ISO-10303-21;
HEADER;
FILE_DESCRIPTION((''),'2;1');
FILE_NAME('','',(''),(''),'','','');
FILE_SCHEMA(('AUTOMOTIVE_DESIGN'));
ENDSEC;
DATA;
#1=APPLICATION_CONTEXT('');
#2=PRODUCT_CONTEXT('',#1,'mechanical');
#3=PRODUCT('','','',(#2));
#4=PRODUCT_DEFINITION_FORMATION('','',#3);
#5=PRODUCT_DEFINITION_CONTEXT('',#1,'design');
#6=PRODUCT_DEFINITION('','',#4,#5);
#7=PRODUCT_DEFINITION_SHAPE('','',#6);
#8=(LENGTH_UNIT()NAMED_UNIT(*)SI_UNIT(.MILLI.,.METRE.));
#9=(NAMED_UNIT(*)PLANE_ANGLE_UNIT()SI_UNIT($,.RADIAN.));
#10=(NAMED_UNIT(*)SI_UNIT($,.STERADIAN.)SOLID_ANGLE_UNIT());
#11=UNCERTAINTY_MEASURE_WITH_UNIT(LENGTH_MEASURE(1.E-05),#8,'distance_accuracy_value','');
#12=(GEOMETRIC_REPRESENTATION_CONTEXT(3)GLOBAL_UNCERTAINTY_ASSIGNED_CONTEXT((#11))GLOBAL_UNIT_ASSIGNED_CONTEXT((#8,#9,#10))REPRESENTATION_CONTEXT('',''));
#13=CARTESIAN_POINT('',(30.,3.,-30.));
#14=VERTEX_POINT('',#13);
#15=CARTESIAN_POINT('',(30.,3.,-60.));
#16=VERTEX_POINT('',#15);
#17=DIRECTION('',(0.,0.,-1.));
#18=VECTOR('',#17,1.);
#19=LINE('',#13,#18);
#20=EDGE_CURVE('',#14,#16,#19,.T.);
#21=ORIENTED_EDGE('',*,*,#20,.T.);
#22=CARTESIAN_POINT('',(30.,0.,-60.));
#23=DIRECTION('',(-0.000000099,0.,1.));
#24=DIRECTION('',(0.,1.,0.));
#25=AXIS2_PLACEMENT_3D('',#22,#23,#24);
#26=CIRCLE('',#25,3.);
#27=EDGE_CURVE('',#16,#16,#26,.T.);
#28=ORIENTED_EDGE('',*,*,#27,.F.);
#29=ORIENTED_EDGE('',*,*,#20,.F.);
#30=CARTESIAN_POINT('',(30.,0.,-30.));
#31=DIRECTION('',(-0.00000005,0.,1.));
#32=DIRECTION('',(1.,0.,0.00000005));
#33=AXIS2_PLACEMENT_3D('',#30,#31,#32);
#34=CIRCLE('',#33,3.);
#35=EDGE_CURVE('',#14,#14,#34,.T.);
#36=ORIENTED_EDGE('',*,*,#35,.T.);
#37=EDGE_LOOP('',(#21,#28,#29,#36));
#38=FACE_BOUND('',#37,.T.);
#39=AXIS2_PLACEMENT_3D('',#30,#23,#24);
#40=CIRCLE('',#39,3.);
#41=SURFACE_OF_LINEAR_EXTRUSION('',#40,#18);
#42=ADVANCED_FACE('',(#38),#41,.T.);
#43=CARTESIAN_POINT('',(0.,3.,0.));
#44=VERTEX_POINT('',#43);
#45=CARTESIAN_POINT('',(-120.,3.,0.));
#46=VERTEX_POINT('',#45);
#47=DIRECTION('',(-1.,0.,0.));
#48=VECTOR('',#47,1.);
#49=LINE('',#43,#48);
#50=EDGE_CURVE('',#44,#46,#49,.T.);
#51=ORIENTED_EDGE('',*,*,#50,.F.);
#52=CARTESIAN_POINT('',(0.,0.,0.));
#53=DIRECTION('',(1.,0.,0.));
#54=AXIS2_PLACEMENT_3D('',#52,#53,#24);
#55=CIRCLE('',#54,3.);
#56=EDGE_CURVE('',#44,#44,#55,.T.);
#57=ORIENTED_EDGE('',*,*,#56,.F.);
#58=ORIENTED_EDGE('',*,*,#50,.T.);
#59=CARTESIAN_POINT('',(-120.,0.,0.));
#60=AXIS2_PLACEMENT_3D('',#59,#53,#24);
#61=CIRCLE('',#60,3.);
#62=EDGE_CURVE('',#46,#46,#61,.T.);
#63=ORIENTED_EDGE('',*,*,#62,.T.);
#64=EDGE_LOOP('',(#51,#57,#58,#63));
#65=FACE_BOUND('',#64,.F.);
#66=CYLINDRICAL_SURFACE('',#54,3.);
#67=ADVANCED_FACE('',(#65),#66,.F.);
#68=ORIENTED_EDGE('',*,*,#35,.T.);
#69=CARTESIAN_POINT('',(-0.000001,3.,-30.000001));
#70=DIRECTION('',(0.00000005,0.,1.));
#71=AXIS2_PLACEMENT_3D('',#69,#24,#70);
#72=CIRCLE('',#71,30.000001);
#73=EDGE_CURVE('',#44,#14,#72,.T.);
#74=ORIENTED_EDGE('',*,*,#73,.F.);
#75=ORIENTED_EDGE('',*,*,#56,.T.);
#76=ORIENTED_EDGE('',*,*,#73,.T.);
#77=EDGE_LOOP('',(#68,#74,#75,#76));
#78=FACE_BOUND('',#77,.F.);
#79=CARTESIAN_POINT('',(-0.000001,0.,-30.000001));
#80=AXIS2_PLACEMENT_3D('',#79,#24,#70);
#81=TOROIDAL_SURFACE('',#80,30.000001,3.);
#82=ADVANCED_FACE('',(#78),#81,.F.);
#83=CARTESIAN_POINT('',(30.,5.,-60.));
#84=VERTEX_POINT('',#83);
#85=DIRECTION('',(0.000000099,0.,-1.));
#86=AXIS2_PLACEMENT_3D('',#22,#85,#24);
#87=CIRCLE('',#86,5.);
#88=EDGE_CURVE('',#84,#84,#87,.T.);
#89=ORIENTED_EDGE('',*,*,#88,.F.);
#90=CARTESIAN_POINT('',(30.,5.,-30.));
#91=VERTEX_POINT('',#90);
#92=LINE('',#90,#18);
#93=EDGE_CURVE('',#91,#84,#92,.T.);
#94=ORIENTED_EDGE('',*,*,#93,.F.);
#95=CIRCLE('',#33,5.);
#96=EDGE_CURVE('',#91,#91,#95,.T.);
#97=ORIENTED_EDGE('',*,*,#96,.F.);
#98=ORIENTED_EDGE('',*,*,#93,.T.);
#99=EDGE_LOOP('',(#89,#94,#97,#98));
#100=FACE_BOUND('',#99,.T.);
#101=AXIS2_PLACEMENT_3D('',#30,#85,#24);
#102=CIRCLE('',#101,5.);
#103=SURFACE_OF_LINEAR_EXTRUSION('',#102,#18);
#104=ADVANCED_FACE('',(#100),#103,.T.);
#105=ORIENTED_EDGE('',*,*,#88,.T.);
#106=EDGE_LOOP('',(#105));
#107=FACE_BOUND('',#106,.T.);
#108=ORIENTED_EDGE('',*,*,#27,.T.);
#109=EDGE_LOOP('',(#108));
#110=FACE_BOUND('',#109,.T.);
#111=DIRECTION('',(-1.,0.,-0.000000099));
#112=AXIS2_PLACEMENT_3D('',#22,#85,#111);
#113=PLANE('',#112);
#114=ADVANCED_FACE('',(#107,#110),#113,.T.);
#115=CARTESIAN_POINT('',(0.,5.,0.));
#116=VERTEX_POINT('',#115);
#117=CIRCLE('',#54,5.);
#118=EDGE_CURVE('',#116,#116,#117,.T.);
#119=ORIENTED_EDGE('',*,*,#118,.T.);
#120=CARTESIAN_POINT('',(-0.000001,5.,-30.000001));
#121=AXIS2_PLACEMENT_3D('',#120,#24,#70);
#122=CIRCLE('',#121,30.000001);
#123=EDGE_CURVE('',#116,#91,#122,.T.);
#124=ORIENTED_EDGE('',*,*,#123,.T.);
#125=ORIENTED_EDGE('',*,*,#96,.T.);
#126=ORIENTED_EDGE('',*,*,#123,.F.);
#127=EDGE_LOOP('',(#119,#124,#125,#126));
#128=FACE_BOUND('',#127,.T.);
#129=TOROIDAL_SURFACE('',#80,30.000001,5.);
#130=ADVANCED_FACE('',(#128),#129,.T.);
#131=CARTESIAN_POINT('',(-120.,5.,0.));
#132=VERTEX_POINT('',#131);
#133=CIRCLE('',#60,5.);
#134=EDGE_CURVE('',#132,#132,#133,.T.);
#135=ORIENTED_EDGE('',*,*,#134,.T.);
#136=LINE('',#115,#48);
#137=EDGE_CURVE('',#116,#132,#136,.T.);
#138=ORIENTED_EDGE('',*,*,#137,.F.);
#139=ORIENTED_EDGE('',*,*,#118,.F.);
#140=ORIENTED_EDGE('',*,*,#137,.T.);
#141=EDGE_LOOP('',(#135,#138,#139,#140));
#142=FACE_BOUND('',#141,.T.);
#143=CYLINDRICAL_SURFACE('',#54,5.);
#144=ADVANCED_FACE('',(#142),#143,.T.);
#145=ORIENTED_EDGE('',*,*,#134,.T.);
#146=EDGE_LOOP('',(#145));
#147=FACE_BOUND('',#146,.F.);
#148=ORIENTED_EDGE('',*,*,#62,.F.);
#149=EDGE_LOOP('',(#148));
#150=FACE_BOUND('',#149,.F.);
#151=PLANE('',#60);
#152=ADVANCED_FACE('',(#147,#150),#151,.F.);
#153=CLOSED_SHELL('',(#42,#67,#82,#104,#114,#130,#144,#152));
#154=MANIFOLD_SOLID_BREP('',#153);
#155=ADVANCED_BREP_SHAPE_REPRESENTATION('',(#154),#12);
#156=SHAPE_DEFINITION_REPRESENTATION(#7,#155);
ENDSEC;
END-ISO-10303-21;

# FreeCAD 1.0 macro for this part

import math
import FreeCAD as App
import Part
import Sketcher

doc = App.newDocument("Part")
body = doc.addObject("PartDesign::Body", "Body")

# Sketch on YZ plane
sketch1 = body.newObject("Sketcher::SketchObject", "Sketch")
sketch1.AttachmentSupport = (doc.getObject("YZ_Plane"), [""])
sketch1.MapMode = "FlatFace"
sketch1.addGeometry([
    Part.Circle(App.Vector(0, 0, 0), App.Vector(0, 0, 1), 5),
    Part.Circle(App.Vector(0, 0, 0), App.Vector(0, 0, 1), 3),
], False)
sketch1.addConstraint([
    Sketcher.Constraint("Coincident", 0, 3, -1, 1),
    Sketcher.Constraint("Coincident", 1, 3, -1, 1),
    Sketcher.Constraint("Diameter", 0, 10.0),
    Sketcher.Constraint("Diameter", 1, 6.0),
])
pad1 = body.newObject("PartDesign::Pad", "Pad")
pad1.Profile = sketch1
pad1.Length = 120
pad1.Reversed = True

# Sketch on YZ plane
sketch2 = body.newObject("Sketcher::SketchObject", "Sketch001")
sketch2.AttachmentSupport = (doc.getObject("YZ_Plane"), [""])
sketch2.MapMode = "FlatFace"
sketch2.addGeometry([
    Part.Circle(App.Vector(0, 0, 0), App.Vector(0, 0, 1), 5),
    Part.Circle(App.Vector(0, 0, 0), App.Vector(0, 0, 1), 3),
], False)
sketch2.addConstraint([
    Sketcher.Constraint("Coincident", 0, 3, -1, 1),
    Sketcher.Constraint("Coincident", 1, 3, -1, 1),
    Sketcher.Constraint("Diameter", 0, 10.0),
    Sketcher.Constraint("Diameter", 1, 6.0),
])

# Sketch on XZ plane
sketch3 = body.newObject("Sketcher::SketchObject", "Sketch002")
sketch3.AttachmentSupport = (doc.getObject("XZ_Plane"), [""])
sketch3.MapMode = "FlatFace"
sketch3.addGeometry([
    Part.ArcOfCircle(Part.Circle(App.Vector(0, -30, 0), App.Vector(0, 0, 1), 30), math.radians(0), math.radians(90)),
    Part.LineSegment(App.Vector(30, -30, 0), App.Vector(30, -60, 0)),
], False)
sketch3.addConstraint([
    Sketcher.Constraint("Tangent", 0, 1, 1, 1),
    Sketcher.Constraint("Vertical", 1),
    Sketcher.Constraint("Coincident", 0, 2, -1, 1),
    Sketcher.Constraint("PointOnObject", 0, 3, -2),
    Sketcher.Constraint("Radius", 0, 30.000001),
    Sketcher.Constraint("DistanceY", 1, 2, 1, 1, 30.0),
])
doc.recompute()

additivepipe = body.newObject("PartDesign::AdditivePipe", "AdditivePipe")
additivepipe.Profile = sketch2
additivepipe.Spine = (sketch3, ["Edge1", "Edge2"])

doc.recompute()
